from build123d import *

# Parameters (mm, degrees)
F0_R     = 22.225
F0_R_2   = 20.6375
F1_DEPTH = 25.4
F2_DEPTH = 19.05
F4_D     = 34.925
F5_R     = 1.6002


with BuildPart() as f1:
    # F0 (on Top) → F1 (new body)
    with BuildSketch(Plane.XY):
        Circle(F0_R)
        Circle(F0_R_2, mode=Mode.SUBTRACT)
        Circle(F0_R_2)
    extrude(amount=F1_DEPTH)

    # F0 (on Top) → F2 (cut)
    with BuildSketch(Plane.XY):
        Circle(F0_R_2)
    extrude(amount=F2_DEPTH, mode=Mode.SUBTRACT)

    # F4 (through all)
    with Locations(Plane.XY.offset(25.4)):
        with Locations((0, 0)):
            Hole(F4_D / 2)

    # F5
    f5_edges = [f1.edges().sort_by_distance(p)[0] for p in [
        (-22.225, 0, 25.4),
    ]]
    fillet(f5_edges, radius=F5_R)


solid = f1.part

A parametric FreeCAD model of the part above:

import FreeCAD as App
import Part
import Sketcher
from FreeCAD import Vector
Q = App.Units.Quantity


def edges_at(feature, points):
    """Names of the edges that pass closest to the given points."""
    edges = feature.Shape.Edges
    near = lambda p: min(range(len(edges)), key=lambda i: edges[i].distToShape(Part.Vertex(*p))[0])
    return sorted({f"Edge{near(p) + 1}" for p in points})

doc = App.newDocument("Part")
params = doc.addObject("Spreadsheet::Sheet", "Params")
for row, (alias, value) in enumerate([
    ("sketch1_diameter", "1.75 in"),
    ("pad1_length", "1 in"),
    ("sketch2_diameter", "1.625 in"),
    ("pocket1_length", "0.75 in"),
    ("sketch3_diameter", "1.375 in"),
    ("hole_diameter", "1.375 in"),
    ("fillet_radius", "0.063 in"),
], start=1):
    params.set(f"A{row}", alias)
    params.set(f"B{row}", "=" + value)
    params.setAlias(f"B{row}", alias)

body = doc.addObject("PartDesign::Body", "Body")

# Sketch on XY plane
sketch1 = body.newObject("Sketcher::SketchObject", "Sketch")
sketch1.AttachmentSupport = (doc.getObject("XY_Plane"), [""])
sketch1.MapMode = "FlatFace"
sketch1.addGeometry(Part.Circle(Vector(0, 0, 0), Vector(0, 0, 1), 22.225), False)
sketch1.addConstraint([
    Sketcher.Constraint("Coincident", 0, 3, -1, 1),
    Sketcher.Constraint("Diameter", 0, Q("1.75 in")),
])
sketch1.setExpression("Constraints[1]", "Params.sketch1_diameter")
pad1 = body.newObject("PartDesign::Pad", "Pad")
pad1.Profile = sketch1
pad1.setExpression("Length", "Params.pad1_length")

# Sketch on XY plane
sketch2 = body.newObject("Sketcher::SketchObject", "Sketch001")
sketch2.AttachmentSupport = (doc.getObject("XY_Plane"), [""])
sketch2.MapMode = "FlatFace"
sketch2.addGeometry(Part.Circle(Vector(0, 0, 0), Vector(0, 0, 1), 20.6375), False)
sketch2.addConstraint([
    Sketcher.Constraint("Coincident", 0, 3, -1, 1),
    Sketcher.Constraint("Diameter", 0, Q("1.625 in")),
])
sketch2.setExpression("Constraints[1]", "Params.sketch2_diameter")
pocket1 = body.newObject("PartDesign::Pocket", "Pocket")
pocket1.Profile = sketch2
pocket1.setExpression("Length", "Params.pocket1_length")
pocket1.Reversed = True

# Sketch on XY plane
sketch3 = body.newObject("Sketcher::SketchObject", "Sketch002")
sketch3.AttachmentSupport = (doc.getObject("XY_Plane"), [""])
sketch3.MapMode = "FlatFace"
sketch3.AttachmentOffset = App.Placement(Vector(0, 0, 1 * 25.4), App.Rotation())
sketch3.addGeometry(Part.Circle(Vector(0, 0, 0), Vector(0, 0, 1), 17.4625), False)
sketch3.addConstraint([
    Sketcher.Constraint("Coincident", 0, 3, -1, 1),
    Sketcher.Constraint("Diameter", 0, Q("1.375 in")),
])
sketch3.setExpression("Constraints[1]", "Params.sketch3_diameter")
doc.recompute()
hole = body.newObject("PartDesign::Hole", "Hole")
hole.Profile = sketch3
hole.ThreadType = "None"
hole.setExpression("Diameter", "Params.hole_diameter")
hole.DepthType = "ThroughAll"
doc.recompute()

fillet = body.newObject("PartDesign::Fillet", "Fillet")
fillet.Base = (hole, edges_at(hole, [(-22.225, 0, 25.4)]))
fillet.setExpression("Radius", "Params.fillet_radius")

doc.recompute()
